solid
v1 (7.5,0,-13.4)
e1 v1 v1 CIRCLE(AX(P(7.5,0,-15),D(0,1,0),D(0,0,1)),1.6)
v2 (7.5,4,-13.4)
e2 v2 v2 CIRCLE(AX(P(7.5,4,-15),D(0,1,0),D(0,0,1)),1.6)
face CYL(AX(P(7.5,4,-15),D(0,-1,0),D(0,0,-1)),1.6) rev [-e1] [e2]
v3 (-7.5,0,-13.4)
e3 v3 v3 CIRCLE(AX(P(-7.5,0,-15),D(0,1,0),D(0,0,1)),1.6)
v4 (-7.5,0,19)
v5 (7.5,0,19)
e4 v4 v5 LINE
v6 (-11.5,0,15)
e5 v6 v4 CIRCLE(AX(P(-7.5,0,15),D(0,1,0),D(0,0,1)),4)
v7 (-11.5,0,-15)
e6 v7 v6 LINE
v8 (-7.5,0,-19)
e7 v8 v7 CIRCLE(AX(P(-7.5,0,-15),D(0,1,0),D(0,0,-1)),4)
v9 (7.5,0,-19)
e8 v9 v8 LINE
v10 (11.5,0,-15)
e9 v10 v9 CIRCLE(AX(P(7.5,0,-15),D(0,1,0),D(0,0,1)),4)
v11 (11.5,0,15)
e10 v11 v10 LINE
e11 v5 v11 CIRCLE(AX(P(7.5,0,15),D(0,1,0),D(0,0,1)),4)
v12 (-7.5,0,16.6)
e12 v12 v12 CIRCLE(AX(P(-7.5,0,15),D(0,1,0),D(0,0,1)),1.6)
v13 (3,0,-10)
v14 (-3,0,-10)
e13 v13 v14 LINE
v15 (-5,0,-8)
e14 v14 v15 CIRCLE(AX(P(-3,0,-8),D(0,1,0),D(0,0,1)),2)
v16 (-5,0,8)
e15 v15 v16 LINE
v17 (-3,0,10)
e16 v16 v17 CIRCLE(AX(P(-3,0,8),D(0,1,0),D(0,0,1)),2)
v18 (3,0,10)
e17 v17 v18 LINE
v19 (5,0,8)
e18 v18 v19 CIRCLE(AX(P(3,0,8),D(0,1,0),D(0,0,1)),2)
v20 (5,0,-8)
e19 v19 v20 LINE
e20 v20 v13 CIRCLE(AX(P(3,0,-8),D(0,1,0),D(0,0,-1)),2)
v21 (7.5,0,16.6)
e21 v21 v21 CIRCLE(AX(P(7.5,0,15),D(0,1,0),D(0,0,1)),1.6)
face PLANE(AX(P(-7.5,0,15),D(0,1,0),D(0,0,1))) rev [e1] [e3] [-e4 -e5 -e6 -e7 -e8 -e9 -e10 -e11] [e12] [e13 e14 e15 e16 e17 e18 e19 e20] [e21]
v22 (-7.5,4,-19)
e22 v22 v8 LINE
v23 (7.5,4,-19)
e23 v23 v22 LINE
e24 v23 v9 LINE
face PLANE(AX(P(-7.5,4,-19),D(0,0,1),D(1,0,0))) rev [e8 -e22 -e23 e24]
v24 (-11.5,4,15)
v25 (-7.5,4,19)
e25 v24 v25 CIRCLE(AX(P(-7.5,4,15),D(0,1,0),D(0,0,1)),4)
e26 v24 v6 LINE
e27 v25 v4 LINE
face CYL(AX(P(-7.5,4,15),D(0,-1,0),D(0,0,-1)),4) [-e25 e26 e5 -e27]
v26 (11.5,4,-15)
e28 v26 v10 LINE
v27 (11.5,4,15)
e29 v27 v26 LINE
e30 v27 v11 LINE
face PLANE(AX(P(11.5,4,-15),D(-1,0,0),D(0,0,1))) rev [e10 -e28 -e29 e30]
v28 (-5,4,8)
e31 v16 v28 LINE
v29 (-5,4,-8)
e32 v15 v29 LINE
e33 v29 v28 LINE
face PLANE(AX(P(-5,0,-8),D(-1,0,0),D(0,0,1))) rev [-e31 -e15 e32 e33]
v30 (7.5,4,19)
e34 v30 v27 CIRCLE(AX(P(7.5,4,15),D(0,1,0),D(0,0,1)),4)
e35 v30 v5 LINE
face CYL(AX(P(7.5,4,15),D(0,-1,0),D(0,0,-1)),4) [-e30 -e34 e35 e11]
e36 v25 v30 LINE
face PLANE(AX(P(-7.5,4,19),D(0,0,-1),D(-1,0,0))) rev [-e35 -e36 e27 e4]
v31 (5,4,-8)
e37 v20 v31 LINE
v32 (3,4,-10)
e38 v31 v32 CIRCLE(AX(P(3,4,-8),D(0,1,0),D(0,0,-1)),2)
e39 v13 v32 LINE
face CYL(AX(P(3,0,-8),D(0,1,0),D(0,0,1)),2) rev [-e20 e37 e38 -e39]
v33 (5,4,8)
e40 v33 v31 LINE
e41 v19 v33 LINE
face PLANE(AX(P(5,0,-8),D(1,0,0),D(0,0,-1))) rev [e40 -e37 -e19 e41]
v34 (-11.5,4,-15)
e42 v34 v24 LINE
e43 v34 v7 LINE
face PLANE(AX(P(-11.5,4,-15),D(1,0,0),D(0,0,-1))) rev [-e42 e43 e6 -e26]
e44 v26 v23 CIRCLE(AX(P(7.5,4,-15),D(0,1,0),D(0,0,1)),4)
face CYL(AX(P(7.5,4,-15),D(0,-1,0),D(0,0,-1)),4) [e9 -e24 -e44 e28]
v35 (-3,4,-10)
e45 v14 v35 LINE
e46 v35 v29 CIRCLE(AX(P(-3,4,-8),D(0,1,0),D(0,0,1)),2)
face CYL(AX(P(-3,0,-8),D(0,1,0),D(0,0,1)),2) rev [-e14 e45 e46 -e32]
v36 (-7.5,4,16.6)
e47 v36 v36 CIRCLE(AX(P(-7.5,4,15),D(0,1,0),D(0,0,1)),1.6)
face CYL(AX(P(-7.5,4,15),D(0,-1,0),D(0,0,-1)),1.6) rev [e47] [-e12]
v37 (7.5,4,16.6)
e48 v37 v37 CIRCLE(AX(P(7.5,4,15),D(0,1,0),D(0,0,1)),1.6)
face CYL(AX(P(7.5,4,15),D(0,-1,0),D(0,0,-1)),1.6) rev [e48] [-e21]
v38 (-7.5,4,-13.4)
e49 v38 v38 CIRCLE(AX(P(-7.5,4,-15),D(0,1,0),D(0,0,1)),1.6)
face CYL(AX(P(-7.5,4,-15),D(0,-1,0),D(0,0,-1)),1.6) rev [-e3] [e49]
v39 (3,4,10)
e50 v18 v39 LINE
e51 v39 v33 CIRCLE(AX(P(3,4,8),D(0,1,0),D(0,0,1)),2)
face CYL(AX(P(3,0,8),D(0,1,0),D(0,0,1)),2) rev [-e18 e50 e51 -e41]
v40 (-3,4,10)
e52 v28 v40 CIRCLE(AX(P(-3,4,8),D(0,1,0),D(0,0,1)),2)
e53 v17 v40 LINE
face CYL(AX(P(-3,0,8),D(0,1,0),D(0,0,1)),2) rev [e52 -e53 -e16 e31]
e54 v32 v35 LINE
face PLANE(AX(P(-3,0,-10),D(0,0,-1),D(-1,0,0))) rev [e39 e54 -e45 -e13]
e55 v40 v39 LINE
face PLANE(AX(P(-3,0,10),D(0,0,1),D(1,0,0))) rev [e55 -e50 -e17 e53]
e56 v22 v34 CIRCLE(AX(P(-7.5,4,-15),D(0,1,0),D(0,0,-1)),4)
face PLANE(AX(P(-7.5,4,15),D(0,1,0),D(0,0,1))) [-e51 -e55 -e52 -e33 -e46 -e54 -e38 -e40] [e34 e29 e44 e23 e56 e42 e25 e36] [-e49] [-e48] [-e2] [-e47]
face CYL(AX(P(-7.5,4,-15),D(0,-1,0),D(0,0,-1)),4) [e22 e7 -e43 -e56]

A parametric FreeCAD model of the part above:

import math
import FreeCAD as App
import Part
import Sketcher

doc = App.newDocument("Part")
body = doc.addObject("PartDesign::Body", "Body")

# Sketch on XZ plane
sketch1 = body.newObject("Sketcher::SketchObject", "Sketch")
sketch1.AttachmentSupport = (doc.getObject("XZ_Plane"), [""])
sketch1.MapMode = "FlatFace"
sketch1.addGeometry(Part.LineSegment(App.Vector(-11.5, -15, 0), App.Vector(-11.5, 15, 0)), False)
sketch1.addGeometry(Part.ArcOfCircle(Part.Circle(App.Vector(-7.5, 15, 0), App.Vector(0, 0, 1), 4), math.radians(90), math.radians(180)), False)
sketch1.addGeometry(Part.LineSegment(App.Vector(-7.5, 19, 0), App.Vector(7.5, 19, 0)), False)
sketch1.addGeometry(Part.ArcOfCircle(Part.Circle(App.Vector(7.5, 15, 0), App.Vector(0, 0, 1), 4), math.radians(0), math.radians(90)), False)
sketch1.addGeometry(Part.LineSegment(App.Vector(11.5, 15, 0), App.Vector(11.5, -15, 0)), False)
sketch1.addGeometry(Part.ArcOfCircle(Part.Circle(App.Vector(7.5, -15, 0), App.Vector(0, 0, 1), 4), math.radians(-90), math.radians(0)), False)
sketch1.addGeometry(Part.LineSegment(App.Vector(7.5, -19, 0), App.Vector(-7.5, -19, 0)), False)
sketch1.addGeometry(Part.ArcOfCircle(Part.Circle(App.Vector(-7.5, -15, 0), App.Vector(0, 0, 1), 4), math.radians(180), math.radians(270)), False)
sketch1.addGeometry(Part.Circle(App.Vector(-7.5, 15, 0), App.Vector(0, 0, 1), 1.6), False)
sketch1.addGeometry(Part.Circle(App.Vector(7.5, 15, 0), App.Vector(0, 0, 1), 1.6), False)
sketch1.addGeometry(Part.Circle(App.Vector(-7.5, -15, 0), App.Vector(0, 0, 1), 1.6), False)
sketch1.addGeometry(Part.Circle(App.Vector(7.5, -15, 0), App.Vector(0, 0, 1), 1.6), False)
sketch1.addConstraint(Sketcher.Constraint("Tangent", 0, 2, 1, 2))
sketch1.addConstraint(Sketcher.Constraint("Tangent", 1, 1, 2, 1))
sketch1.addConstraint(Sketcher.Constraint("Tangent", 2, 2, 3, 2))
sketch1.addConstraint(Sketcher.Constraint("Tangent", 3, 1, 4, 1))
sketch1.addConstraint(Sketcher.Constraint("Tangent", 4, 2, 5, 2))
sketch1.addConstraint(Sketcher.Constraint("Tangent", 5, 1, 6, 1))
sketch1.addConstraint(Sketcher.Constraint("Tangent", 6, 2, 7, 2))
sketch1.addConstraint(Sketcher.Constraint("Tangent", 7, 1, 0, 1))
sketch1.addConstraint(Sketcher.Constraint("Vertical", 0))
sketch1.addConstraint(Sketcher.Constraint("Horizontal", 2))
sketch1.addConstraint(Sketcher.Constraint("Vertical", 4))
sketch1.addConstraint(Sketcher.Constraint("Horizontal", 6))
sketch1.addConstraint(Sketcher.Constraint("Coincident", 8, 3, 1, 3))
sketch1.addConstraint(Sketcher.Constraint("Coincident", 9, 3, 3, 3))
sketch1.addConstraint(Sketcher.Constraint("Coincident", 10, 3, 7, 3))
sketch1.addConstraint(Sketcher.Constraint("Coincident", 11, 3, 5, 3))
sketch1.addConstraint(Sketcher.Constraint("Equal", 1, 3))
sketch1.addConstraint(Sketcher.Constraint("Equal", 3, 5))
sketch1.addConstraint(Sketcher.Constraint("Equal", 5, 7))
sketch1.addConstraint(Sketcher.Constraint("Equal", 8, 9))
sketch1.addConstraint(Sketcher.Constraint("Equal", 9, 10))
sketch1.addConstraint(Sketcher.Constraint("Equal", 10, 11))
sketch1.addConstraint(Sketcher.Constraint("Symmetric", 1, 3, 5, 3, -1, 1))
sketch1.addConstraint(Sketcher.Constraint("Radius", 1, 4.0))
sketch1.addConstraint(Sketcher.Constraint("Diameter", 8, 3.2))
sketch1.addConstraint(Sketcher.Constraint("DistanceX", 2, 1, 2, 2, 15.0))
sketch1.addConstraint(Sketcher.Constraint("DistanceY", 0, 1, 0, 2, 30.0))
pad1 = body.newObject("PartDesign::Pad", "Pad")
pad1.Profile = sketch1
pad1.Length = 4
pad1.Reversed = True

# Sketch on XZ plane
sketch2 = body.newObject("Sketcher::SketchObject", "Sketch001")
sketch2.AttachmentSupport = (doc.getObject("XZ_Plane"), [""])
sketch2.MapMode = "FlatFace"
sketch2.AttachmentOffset = App.Placement(App.Vector(0, 0, -4), App.Rotation())
sketch2.addGeometry(Part.LineSegment(App.Vector(3, -10, 0), App.Vector(-3, -10, 0)), False)
sketch2.addGeometry(Part.ArcOfCircle(Part.Circle(App.Vector(-3, -8, 0), App.Vector(0, 0, 1), 2), math.radians(-180), math.radians(-90)), False)
sketch2.addGeometry(Part.LineSegment(App.Vector(-5, -8, 0), App.Vector(-5, 8, 0)), False)
sketch2.addGeometry(Part.ArcOfCircle(Part.Circle(App.Vector(-3, 8, 0), App.Vector(0, 0, 1), 2), math.radians(90), math.radians(180)), False)
sketch2.addGeometry(Part.LineSegment(App.Vector(-3, 10, 0), App.Vector(3, 10, 0)), False)
sketch2.addGeometry(Part.ArcOfCircle(Part.Circle(App.Vector(3, 8, 0), App.Vector(0, 0, 1), 2), math.radians(0), math.radians(90)), False)
sketch2.addGeometry(Part.LineSegment(App.Vector(5, 8, 0), App.Vector(5, -8, 0)), False)
sketch2.addGeometry(Part.ArcOfCircle(Part.Circle(App.Vector(3, -8, 0), App.Vector(0, 0, 1), 2), math.radians(-90), math.radians(0)), False)
sketch2.addConstraint(Sketcher.Constraint("Tangent", 0, 2, 1, 2))
sketch2.addConstraint(Sketcher.Constraint("Tangent", 1, 1, 2, 1))
sketch2.addConstraint(Sketcher.Constraint("Tangent", 2, 2, 3, 2))
sketch2.addConstraint(Sketcher.Constraint("Tangent", 3, 1, 4, 1))
sketch2.addConstraint(Sketcher.Constraint("Tangent", 4, 2, 5, 2))
sketch2.addConstraint(Sketcher.Constraint("Tangent", 5, 1, 6, 1))
sketch2.addConstraint(Sketcher.Constraint("Tangent", 6, 2, 7, 2))
sketch2.addConstraint(Sketcher.Constraint("Tangent", 7, 1, 0, 1))
sketch2.addConstraint(Sketcher.Constraint("Horizontal", 0))
sketch2.addConstraint(Sketcher.Constraint("Vertical", 2))
sketch2.addConstraint(Sketcher.Constraint("Horizontal", 4))
sketch2.addConstraint(Sketcher.Constraint("Vertical", 6))
sketch2.addConstraint(Sketcher.Constraint("Equal", 1, 3))
sketch2.addConstraint(Sketcher.Constraint("Equal", 3, 5))
sketch2.addConstraint(Sketcher.Constraint("Equal", 5, 7))
sketch2.addConstraint(Sketcher.Constraint("Symmetric", 1, 3, 5, 3, -1, 1))
sketch2.addConstraint(Sketcher.Constraint("Radius", 1, 2.0))
sketch2.addConstraint(Sketcher.Constraint("DistanceX", 0, 2, 0, 1, 6.0))
sketch2.addConstraint(Sketcher.Constraint("DistanceY", 2, 1, 2, 2, 16.0))
pocket1 = body.newObject("PartDesign::Pocket", "Pocket")
pocket1.Profile = sketch2
pocket1.Type = "ThroughAll"
pocket1.Reversed = True

doc.recompute()
